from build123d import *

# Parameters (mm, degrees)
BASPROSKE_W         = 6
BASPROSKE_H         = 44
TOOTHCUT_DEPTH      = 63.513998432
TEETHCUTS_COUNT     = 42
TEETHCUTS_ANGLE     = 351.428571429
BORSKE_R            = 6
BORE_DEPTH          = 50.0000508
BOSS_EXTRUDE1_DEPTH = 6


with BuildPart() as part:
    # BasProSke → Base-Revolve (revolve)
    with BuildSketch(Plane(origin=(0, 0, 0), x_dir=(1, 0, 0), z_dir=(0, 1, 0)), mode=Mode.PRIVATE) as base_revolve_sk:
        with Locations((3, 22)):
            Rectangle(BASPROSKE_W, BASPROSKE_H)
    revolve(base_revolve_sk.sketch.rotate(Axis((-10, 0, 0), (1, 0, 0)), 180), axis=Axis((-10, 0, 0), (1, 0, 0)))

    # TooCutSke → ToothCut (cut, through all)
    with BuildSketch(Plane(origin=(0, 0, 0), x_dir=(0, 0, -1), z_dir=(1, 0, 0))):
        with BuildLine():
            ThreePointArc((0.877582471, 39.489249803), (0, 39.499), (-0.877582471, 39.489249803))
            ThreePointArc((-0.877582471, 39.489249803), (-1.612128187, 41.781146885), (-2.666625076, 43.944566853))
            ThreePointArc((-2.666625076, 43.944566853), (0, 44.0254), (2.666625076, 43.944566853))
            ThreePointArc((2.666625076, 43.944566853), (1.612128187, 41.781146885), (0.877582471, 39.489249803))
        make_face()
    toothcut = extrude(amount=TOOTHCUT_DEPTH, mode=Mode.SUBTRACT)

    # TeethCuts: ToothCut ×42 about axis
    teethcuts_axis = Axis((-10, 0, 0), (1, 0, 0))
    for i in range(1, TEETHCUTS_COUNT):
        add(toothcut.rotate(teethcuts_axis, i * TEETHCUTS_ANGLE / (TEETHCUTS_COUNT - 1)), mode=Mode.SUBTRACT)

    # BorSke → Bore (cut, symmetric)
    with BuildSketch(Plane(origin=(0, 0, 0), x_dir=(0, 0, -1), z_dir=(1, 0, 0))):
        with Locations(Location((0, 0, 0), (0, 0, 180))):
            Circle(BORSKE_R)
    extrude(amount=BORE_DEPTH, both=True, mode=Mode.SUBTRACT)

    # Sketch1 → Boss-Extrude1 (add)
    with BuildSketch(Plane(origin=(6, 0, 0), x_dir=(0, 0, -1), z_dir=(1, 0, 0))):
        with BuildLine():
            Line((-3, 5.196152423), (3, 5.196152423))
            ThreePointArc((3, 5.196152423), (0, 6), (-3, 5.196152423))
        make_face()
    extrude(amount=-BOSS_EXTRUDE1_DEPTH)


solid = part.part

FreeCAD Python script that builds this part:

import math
import FreeCAD as App
import Part
import Sketcher
from FreeCAD import Vector
Q = App.Units.Quantity

doc = App.newDocument("Part")
body = doc.addObject("PartDesign::Body", "Body")

sketch1 = doc.addObject("Sketcher::SketchObject", "Sketch")
body.addObject(sketch1)
sketch1.AttachmentSupport = (doc.XZ_Plane, [""])
sketch1.MapMode = "FlatFace"
sketch1.addGeometry(Part.LineSegment(Vector(0, -44, 0), Vector(0, 0, 0)), False)
sketch1.addGeometry(Part.LineSegment(Vector(0, 0, 0), Vector(6, 0, 0)), False)
sketch1.addGeometry(Part.LineSegment(Vector(6, 0, 0), Vector(6, -44, 0)), False)
sketch1.addGeometry(Part.LineSegment(Vector(6, -44, 0), Vector(0, -44, 0)), False)
sketch1.addConstraint(Sketcher.Constraint("Coincident", 0, 2, 1, 1))
sketch1.addConstraint(Sketcher.Constraint("Coincident", 1, 2, 2, 1))
sketch1.addConstraint(Sketcher.Constraint("Coincident", 2, 2, 3, 1))
sketch1.addConstraint(Sketcher.Constraint("Coincident", 3, 2, 0, 1))
sketch1.addConstraint(Sketcher.Constraint("Vertical", 0))
sketch1.addConstraint(Sketcher.Constraint("Horizontal", 1))
sketch1.addConstraint(Sketcher.Constraint("Vertical", 2))
sketch1.addConstraint(Sketcher.Constraint("Horizontal", 3))
sketch1.addConstraint(Sketcher.Constraint("Coincident", 0, 2, -1, 1))
sketch1.addConstraint(Sketcher.Constraint("DistanceX", 1, 1, 1, 2, Q("6 mm")))
sketch1.addConstraint(Sketcher.Constraint("DistanceY", 0, 1, 0, 2, Q("44 mm")))
revolution = doc.addObject("PartDesign::Revolution", "Revolution")
body.addObject(revolution)
revolution.Profile = sketch1
revolution.ReferenceAxis = (sketch1, ["H_Axis"])
revolution.Angle = 360

sketch2 = doc.addObject("Sketcher::SketchObject", "Sketch001")
body.addObject(sketch2)
sketch2.AttachmentSupport = (doc.YZ_Plane, [""])
sketch2.MapMode = "FlatFace"
sketch2.addGeometry(Part.ArcOfCircle(Part.Circle(Vector(0, 0, 0), Vector(0, 0, 1), 39.499), math.radians(-1.273093), math.radians(1.273093)), False)
sketch2.addGeometry(Part.ArcOfCircle(Part.Circle(Vector(35.520927, -17.202178, 0), Vector(0, 0, 1), 16.8), math.radians(59.906862), math.radians(76.33706)), False)
sketch2.addGeometry(Part.ArcOfCircle(Part.Circle(Vector(0, 0, 0), Vector(0, 0, 1), 44.0254), math.radians(-3.472539), math.radians(3.472539)), False)
sketch2.addGeometry(Part.ArcOfCircle(Part.Circle(Vector(35.520927, 17.202178, 0), Vector(0, 0, 1), 16.8), math.radians(-76.33706), math.radians(-59.906862)), False)
sketch2.addConstraint(Sketcher.Constraint("Coincident", 0, 1, 1, 2))
sketch2.addConstraint(Sketcher.Constraint("Coincident", 1, 1, 2, 1))
sketch2.addConstraint(Sketcher.Constraint("Coincident", 2, 2, 3, 2))
sketch2.addConstraint(Sketcher.Constraint("Coincident", 3, 1, 0, 2))
sketch2.addConstraint(Sketcher.Constraint("Coincident", 0, 3, -1, 1))
sketch2.addConstraint(Sketcher.Constraint("Coincident", 2, 3, -1, 1))
sketch2.addConstraint(Sketcher.Constraint("Radius", 1, Q("16.8 mm")))
sketch2.addConstraint(Sketcher.Constraint("Radius", 3, Q("16.8 mm")))
sketch2.addConstraint(Sketcher.Constraint("Radius", 0, Q("39.499 mm")))
sketch2.addConstraint(Sketcher.Constraint("Radius", 2, Q("44.0254 mm")))
sketch2.addConstraint(Sketcher.Constraint("DistanceX", -1, 1, 0, 1, Q("39.48925 mm")))
sketch2.addConstraint(Sketcher.Constraint("DistanceY", 0, 1, 3, 3, Q("18.07976 mm")))
sketch2.addConstraint(Sketcher.Constraint("DistanceX", 1, 3, 1, 1, Q("8.42364 mm")))
sketch2.addConstraint(Sketcher.Constraint("DistanceX", 3, 3, 1, 1, Q("8.42364 mm")))
pocket1 = doc.addObject("PartDesign::Pocket", "Pocket")
body.addObject(pocket1)
pocket1.Profile = sketch2
pocket1.Type = "ThroughAll"
pocket1.Reversed = True
doc.recompute()

polarpattern = doc.addObject("PartDesign::PolarPattern", "PolarPattern")
body.addObject(polarpattern)
polarpattern.Originals = [pocket1]
polarpattern.Axis = (doc.X_Axis, [""])
polarpattern.Angle = 360
polarpattern.Occurrences = 42
body.Tip = polarpattern

sketch3 = doc.addObject("Sketcher::SketchObject", "Sketch002")
body.addObject(sketch3)
sketch3.AttachmentSupport = (doc.YZ_Plane, [""])
sketch3.MapMode = "FlatFace"
sketch3.addGeometry(Part.Circle(Vector(0, 0, 0), Vector(0, 0, 1), 6), False)
sketch3.addConstraint(Sketcher.Constraint("Coincident", 0, 3, -1, 1))
sketch3.addConstraint(Sketcher.Constraint("Diameter", 0, Q("12 mm")))
pocket2 = doc.addObject("PartDesign::Pocket", "Pocket001")
body.addObject(pocket2)
pocket2.Profile = sketch3
pocket2.Length = 100.000102
pocket2.Midplane = True

sketch4 = doc.addObject("Sketcher::SketchObject", "Sketch003")
body.addObject(sketch4)
sketch4.AttachmentSupport = (doc.YZ_Plane, [""])
sketch4.MapMode = "FlatFace"
sketch4.AttachmentOffset = App.Placement(Vector(0, 0, 6), App.Rotation())
sketch4.addGeometry(Part.LineSegment(Vector(5.196152, 3, 0), Vector(5.196152, -3, 0)), False)
sketch4.addGeometry(Part.ArcOfCircle(Part.Circle(Vector(0, 0, 0), Vector(0, 0, 1), 6), math.radians(-30), math.radians(30)), False)
sketch4.addConstraint(Sketcher.Constraint("Coincident", 0, 1, 1, 2))
sketch4.addConstraint(Sketcher.Constraint("Coincident", 1, 1, 0, 2))
sketch4.addConstraint(Sketcher.Constraint("Vertical", 0))
sketch4.addConstraint(Sketcher.Constraint("Coincident", 1, 3, -1, 1))
sketch4.addConstraint(Sketcher.Constraint("Radius", 1, Q("6 mm")))
sketch4.addConstraint(Sketcher.Constraint("DistanceY", 0, 2, 0, 1, Q("6 mm")))
pad1 = doc.addObject("PartDesign::Pad", "Pad")
body.addObject(pad1)
pad1.Profile = sketch4
pad1.Length = 6
pad1.Reversed = True

doc.recompute()
